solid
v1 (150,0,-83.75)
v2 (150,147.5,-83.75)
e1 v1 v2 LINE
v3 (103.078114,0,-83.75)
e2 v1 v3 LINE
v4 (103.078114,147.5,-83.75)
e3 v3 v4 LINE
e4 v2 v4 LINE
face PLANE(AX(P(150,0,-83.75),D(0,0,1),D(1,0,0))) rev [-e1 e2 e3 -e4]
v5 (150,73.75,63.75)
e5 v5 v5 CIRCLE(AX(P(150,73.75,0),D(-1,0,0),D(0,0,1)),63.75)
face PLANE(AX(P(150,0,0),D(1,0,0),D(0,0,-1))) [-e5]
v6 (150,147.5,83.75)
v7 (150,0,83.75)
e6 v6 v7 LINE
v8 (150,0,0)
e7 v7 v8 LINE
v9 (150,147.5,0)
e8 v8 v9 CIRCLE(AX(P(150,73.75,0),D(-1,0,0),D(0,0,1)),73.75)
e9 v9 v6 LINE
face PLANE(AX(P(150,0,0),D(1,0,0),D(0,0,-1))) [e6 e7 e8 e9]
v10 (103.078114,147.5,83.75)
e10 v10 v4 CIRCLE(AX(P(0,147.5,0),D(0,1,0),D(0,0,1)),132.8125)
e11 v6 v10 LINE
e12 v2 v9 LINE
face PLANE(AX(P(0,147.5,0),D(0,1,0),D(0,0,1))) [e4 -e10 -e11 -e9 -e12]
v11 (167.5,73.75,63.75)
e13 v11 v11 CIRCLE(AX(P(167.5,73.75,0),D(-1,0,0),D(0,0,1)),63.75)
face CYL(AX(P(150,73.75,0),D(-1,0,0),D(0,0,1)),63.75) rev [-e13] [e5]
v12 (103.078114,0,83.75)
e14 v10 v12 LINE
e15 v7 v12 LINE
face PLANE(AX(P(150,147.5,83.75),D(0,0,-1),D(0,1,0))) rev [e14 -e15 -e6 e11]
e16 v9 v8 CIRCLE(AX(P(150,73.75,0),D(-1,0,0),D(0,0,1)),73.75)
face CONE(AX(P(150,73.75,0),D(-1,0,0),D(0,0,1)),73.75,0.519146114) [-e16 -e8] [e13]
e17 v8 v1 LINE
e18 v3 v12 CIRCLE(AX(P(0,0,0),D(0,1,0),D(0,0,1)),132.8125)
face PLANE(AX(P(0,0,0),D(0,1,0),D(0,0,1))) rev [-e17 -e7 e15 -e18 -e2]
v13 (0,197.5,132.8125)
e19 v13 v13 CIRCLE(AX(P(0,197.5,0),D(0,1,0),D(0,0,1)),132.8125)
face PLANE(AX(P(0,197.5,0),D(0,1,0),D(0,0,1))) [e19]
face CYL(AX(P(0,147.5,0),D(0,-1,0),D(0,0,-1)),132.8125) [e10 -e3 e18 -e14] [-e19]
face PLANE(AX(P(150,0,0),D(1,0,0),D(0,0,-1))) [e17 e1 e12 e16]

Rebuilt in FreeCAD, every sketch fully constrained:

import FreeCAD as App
import Part
import Sketcher
Q = App.Units.Quantity


def add_polygon(sketch, points):
    """Adds a closed chain of lines whose ends are joined by coincident constraints."""
    first, n = sketch.GeometryCount, len(points)
    for a, b in zip(points, points[1:] + points[:1]):
        sketch.addGeometry(Part.LineSegment(App.Vector(*a, 0), App.Vector(*b, 0)), False)
    for i in range(n):
        sketch.addConstraint(Sketcher.Constraint("Coincident", first + i, 2, first + (i + 1) % n, 1))

doc = App.newDocument("Part")
params = doc.addObject("Spreadsheet::Sheet", "Params")
for row, (alias, value) in enumerate([
    ("pad1_length", "147.5 mm"),
    ("sketch2_width", "147.5 mm"),
    ("sketch2_height", "167.5 mm"),
    ("pad2_length", "150 mm"),
    ("sketch3_height", "10 mm"),
    ("sketch3_width", "17.5 mm"),
    ("revolution_angle", "360 deg"),
    ("pad3_length", "50 mm"),
], start=1):
    params.set(f"A{row}", alias)
    params.set(f"B{row}", "=" + value)
    params.setAlias(f"B{row}", alias)

body = doc.addObject("PartDesign::Body", "Body")

# Sketch on XZ plane
sketch1 = body.newObject("Sketcher::SketchObject", "Sketch")
sketch1.AttachmentSupport = (doc.getObject("XZ_Plane"), [""])
sketch1.MapMode = "FlatFace"
sketch1.addGeometry(Part.Circle(App.Vector(0, 0, 0), App.Vector(0, 0, 1), 133), False)
sketch1.addConstraint(Sketcher.Constraint("Coincident", 0, 3, -1, 1))
sketch1.addConstraint(Sketcher.Constraint("Diameter", 0, Q("265.625 mm")))
pad1 = body.newObject("PartDesign::Pad", "Pad")
pad1.Profile = sketch1
pad1.setExpression("Length", "Params.pad1_length")
pad1.Reversed = True

# Sketch on YZ plane
sketch2 = body.newObject("Sketcher::SketchObject", "Sketch001")
sketch2.AttachmentSupport = (doc.getObject("YZ_Plane"), [""])
sketch2.MapMode = "FlatFace"
add_polygon(sketch2, [(148, 84), (0, 84), (0, -84), (148, -84)])  # lines 0-3
sketch2.addConstraint(Sketcher.Constraint("Horizontal", 0))
sketch2.addConstraint(Sketcher.Constraint("Vertical", 1))
sketch2.addConstraint(Sketcher.Constraint("Horizontal", 2))
sketch2.addConstraint(Sketcher.Constraint("Vertical", 3))
sketch2.addConstraint(Sketcher.Constraint("Symmetric", 0, 2, 1, 2, -1, 1))
sketch2.addConstraint(Sketcher.Constraint("DistanceX", 0, 2, 0, 1, Q("147.5 mm")))
sketch2.addConstraint(Sketcher.Constraint("DistanceY", 1, 2, 1, 1, Q("167.5 mm")))
sketch2.setExpression("Constraints[9]", "Params.sketch2_width")
sketch2.setExpression("Constraints[10]", "Params.sketch2_height")
pad2 = body.newObject("PartDesign::Pad", "Pad001")
pad2.Profile = sketch2
pad2.setExpression("Length", "Params.pad2_length")

# Sketch on XY plane
sketch3 = body.newObject("Sketcher::SketchObject", "Sketch002")
sketch3.AttachmentSupport = (doc.getObject("XY_Plane"), [""])
sketch3.MapMode = "FlatFace"
add_polygon(sketch3, [(150, 10), (150, 0), (168, 10)])  # lines 0-2
sketch3.addGeometry(Part.LineSegment(App.Vector(150, 74, 0), App.Vector(168, 74, 0)), True)  # axis
sketch3.addConstraint(Sketcher.Constraint("Vertical", 0))
sketch3.addConstraint(Sketcher.Constraint("Horizontal", 2))
sketch3.addConstraint(Sketcher.Constraint("Horizontal", 3))
sketch3.addConstraint(Sketcher.Constraint("PointOnObject", 0, 2, -1))
sketch3.addConstraint(Sketcher.Constraint("Vertical", 2, 2, 3, 1))
sketch3.addConstraint(Sketcher.Constraint("Vertical", 1, 2, 3, 2))
sketch3.addConstraint(Sketcher.Constraint("DistanceY", 0, 2, 0, 1, Q("10 mm")))
sketch3.addConstraint(Sketcher.Constraint("DistanceX", 2, 2, 2, 1, Q("17.5 mm")))
sketch3.addConstraint(Sketcher.Constraint("DistanceX", -1, 1, 0, 2, Q("150 mm")))
sketch3.addConstraint(Sketcher.Constraint("DistanceY", -1, 1, 3, 1, Q("73.75 mm")))
sketch3.setExpression("Constraints[9]", "Params.sketch3_height")
sketch3.setExpression("Constraints[10]", "Params.sketch3_width")
revolution = body.newObject("PartDesign::Revolution", "Revolution")
revolution.Profile = sketch3
revolution.ReferenceAxis = (sketch3, ["Axis0"])
revolution.setExpression("Angle", "Params.revolution_angle")

# Sketch on XZ plane
sketch4 = body.newObject("Sketcher::SketchObject", "Sketch003")
sketch4.AttachmentSupport = (doc.getObject("XZ_Plane"), [""])
sketch4.MapMode = "FlatFace"
sketch4.AttachmentOffset = App.Placement(App.Vector(0, 0, -147.5), App.Rotation())
sketch4.addGeometry(Part.Circle(App.Vector(0, 0, 0), App.Vector(0, 0, 1), 133), False)
sketch4.addConstraint(Sketcher.Constraint("Coincident", 0, 3, -1, 1))
sketch4.addConstraint(Sketcher.Constraint("Diameter", 0, Q("265.625 mm")))
pad3 = body.newObject("PartDesign::Pad", "Pad002")
pad3.Profile = sketch4
pad3.setExpression("Length", "Params.pad3_length")
pad3.Reversed = True

doc.recompute()
